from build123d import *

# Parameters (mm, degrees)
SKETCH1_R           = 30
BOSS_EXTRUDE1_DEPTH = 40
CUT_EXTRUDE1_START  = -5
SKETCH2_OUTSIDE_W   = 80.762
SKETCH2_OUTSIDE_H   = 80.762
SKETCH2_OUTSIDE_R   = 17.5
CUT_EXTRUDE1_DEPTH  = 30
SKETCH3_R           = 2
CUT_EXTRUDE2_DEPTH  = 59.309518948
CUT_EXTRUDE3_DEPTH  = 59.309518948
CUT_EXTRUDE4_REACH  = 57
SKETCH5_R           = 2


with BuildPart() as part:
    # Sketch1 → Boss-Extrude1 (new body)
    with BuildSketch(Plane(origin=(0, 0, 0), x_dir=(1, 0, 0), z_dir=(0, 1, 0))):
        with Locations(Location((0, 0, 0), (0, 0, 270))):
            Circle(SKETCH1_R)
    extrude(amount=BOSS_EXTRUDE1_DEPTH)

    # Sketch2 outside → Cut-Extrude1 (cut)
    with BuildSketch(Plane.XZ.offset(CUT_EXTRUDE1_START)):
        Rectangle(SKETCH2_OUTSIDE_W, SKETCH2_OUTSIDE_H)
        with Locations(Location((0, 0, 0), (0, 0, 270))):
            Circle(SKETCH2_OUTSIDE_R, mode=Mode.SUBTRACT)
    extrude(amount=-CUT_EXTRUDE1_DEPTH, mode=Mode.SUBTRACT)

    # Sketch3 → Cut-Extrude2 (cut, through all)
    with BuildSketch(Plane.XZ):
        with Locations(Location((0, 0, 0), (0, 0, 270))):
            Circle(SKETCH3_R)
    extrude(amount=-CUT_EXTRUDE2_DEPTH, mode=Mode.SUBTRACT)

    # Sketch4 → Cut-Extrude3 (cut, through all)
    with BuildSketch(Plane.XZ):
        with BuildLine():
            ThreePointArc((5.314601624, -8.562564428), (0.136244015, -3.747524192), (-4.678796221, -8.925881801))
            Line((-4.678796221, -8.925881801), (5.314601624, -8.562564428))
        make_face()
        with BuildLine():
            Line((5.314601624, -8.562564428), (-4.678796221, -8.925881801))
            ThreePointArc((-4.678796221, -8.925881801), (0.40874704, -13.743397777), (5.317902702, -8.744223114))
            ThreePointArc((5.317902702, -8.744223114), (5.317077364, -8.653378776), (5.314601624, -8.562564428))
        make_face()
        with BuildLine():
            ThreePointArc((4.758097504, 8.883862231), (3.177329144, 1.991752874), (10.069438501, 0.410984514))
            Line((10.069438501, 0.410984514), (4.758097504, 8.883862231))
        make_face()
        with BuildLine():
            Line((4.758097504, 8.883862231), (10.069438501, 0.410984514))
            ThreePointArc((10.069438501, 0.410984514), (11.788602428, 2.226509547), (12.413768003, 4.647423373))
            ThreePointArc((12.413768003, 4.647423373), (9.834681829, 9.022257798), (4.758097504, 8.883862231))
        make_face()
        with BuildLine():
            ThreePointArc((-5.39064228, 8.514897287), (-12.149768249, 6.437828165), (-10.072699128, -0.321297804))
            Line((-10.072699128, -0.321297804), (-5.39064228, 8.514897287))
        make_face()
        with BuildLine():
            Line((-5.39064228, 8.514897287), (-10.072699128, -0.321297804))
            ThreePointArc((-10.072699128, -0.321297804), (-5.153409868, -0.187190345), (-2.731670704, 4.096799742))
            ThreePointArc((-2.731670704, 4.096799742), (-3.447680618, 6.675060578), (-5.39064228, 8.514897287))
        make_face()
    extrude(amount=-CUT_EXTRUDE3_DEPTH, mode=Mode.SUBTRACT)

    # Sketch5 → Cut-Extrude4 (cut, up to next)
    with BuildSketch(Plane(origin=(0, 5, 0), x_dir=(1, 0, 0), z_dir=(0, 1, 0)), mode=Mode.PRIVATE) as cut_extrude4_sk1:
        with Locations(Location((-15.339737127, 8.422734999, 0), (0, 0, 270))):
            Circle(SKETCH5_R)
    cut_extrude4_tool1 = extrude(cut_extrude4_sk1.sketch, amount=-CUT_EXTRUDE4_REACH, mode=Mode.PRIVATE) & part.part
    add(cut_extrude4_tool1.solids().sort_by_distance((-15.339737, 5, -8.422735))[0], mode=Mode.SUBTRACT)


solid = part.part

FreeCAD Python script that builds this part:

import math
import FreeCAD as App
import Part
import Sketcher
from FreeCAD import Vector
Q = App.Units.Quantity

doc = App.newDocument("Part")
body = doc.addObject("PartDesign::Body", "Body")

# Sketch on XZ plane
sketch1 = doc.addObject("Sketcher::SketchObject", "Sketch")
body.addObject(sketch1)
sketch1.AttachmentSupport = (doc.XZ_Plane, [""])
sketch1.MapMode = "FlatFace"
sketch1.addGeometry(Part.Circle(Vector(0, 0, 0), Vector(0, 0, 1), 30), False)
sketch1.addConstraint([
    Sketcher.Constraint("Coincident", 0, 3, -1, 1),
    Sketcher.Constraint("Diameter", 0, Q("60 mm")),
])
pad1 = doc.addObject("PartDesign::Pad", "Pad")
body.addObject(pad1)
pad1.Profile = sketch1
pad1.Length = 40
pad1.Reversed = True

# Sketch on XZ plane
sketch2 = doc.addObject("Sketcher::SketchObject", "Sketch001")
body.addObject(sketch2)
sketch2.AttachmentSupport = (doc.XZ_Plane, [""])
sketch2.MapMode = "FlatFace"
sketch2.AttachmentOffset = App.Placement(Vector(0, 0, -5), App.Rotation())
sketch2.addGeometry([
    Part.LineSegment(Vector(-40.381, 40.381, 0), Vector(-40.381, -40.381, 0)),  # 0
    Part.LineSegment(Vector(-40.381, -40.381, 0), Vector(40.381, -40.381, 0)),  # 1
    Part.LineSegment(Vector(40.381, -40.381, 0), Vector(40.381, 40.381, 0)),  # 2
    Part.LineSegment(Vector(40.381, 40.381, 0), Vector(-40.381, 40.381, 0)),  # 3
    Part.Circle(Vector(0, 0, 0), Vector(0, 0, 1), 17.5),  # 4
], False)
sketch2.addConstraint([
    Sketcher.Constraint("Coincident", 0, 2, 1, 1),
    Sketcher.Constraint("Coincident", 1, 2, 2, 1),
    Sketcher.Constraint("Coincident", 2, 2, 3, 1),
    Sketcher.Constraint("Coincident", 3, 2, 0, 1),
    Sketcher.Constraint("Vertical", 0),
    Sketcher.Constraint("Horizontal", 1),
    Sketcher.Constraint("Vertical", 2),
    Sketcher.Constraint("Horizontal", 3),
    Sketcher.Constraint("Coincident", 4, 3, -1, 1),
    Sketcher.Constraint("Symmetric", 0, 2, 2, 2, -1, 1),
    Sketcher.Constraint("Equal", 3, 0),
    Sketcher.Constraint("Diameter", 4, Q("35 mm")),
    Sketcher.Constraint("DistanceX", 1, 1, 1, 2, Q("80.762 mm")),
])
pocket1 = doc.addObject("PartDesign::Pocket", "Pocket")
body.addObject(pocket1)
pocket1.Profile = sketch2
pocket1.Length = 30

# Sketch on XZ plane
sketch3 = doc.addObject("Sketcher::SketchObject", "Sketch002")
body.addObject(sketch3)
sketch3.AttachmentSupport = (doc.XZ_Plane, [""])
sketch3.MapMode = "FlatFace"
sketch3.addGeometry(Part.Circle(Vector(0, 0, 0), Vector(0, 0, 1), 2), False)
sketch3.addConstraint([
    Sketcher.Constraint("Coincident", 0, 3, -1, 1),
    Sketcher.Constraint("Diameter", 0, Q("4 mm")),
])
pocket2 = doc.addObject("PartDesign::Pocket", "Pocket001")
body.addObject(pocket2)
pocket2.Profile = sketch3
pocket2.Type = "ThroughAll"

# Sketch on XZ plane
sketch4 = doc.addObject("Sketcher::SketchObject", "Sketch003")
body.addObject(sketch4)
sketch4.AttachmentSupport = (doc.XZ_Plane, [""])
sketch4.MapMode = "FlatFace"
sketch4.addGeometry([
    Part.ArcOfCircle(Part.Circle(Vector(0.317903, -8.744223, 0), Vector(0, 0, 1), 5), math.radians(2.082113), math.radians(182.082113)),  # 0
    Part.ArcOfCircle(Part.Circle(Vector(0.317903, -8.744223, 0), Vector(0, 0, 1), 5), math.radians(-177.917887), math.radians(0)),  # 1
    Part.ArcOfCircle(Part.Circle(Vector(0.317901, -8.744223, 0), Vector(0, 0, 1), 5.000002), math.radians(0), math.radians(2.082113)),  # 2
    Part.ArcOfCircle(Part.Circle(Vector(7.413768, 4.647423, 0), Vector(0, 0, 1), 5), math.radians(122.082113), math.radians(302.082113)),  # 3
    Part.ArcOfCircle(Part.Circle(Vector(7.413768, 4.647423, 0), Vector(0, 0, 1), 5), math.radians(-57.917887), math.radians(0)),  # 4
    Part.ArcOfCircle(Part.Circle(Vector(7.413768, 4.647423, 0), Vector(0, 0, 1), 5), math.radians(0), math.radians(122.082113)),  # 5
    Part.ArcOfCircle(Part.Circle(Vector(-7.731671, 4.0968, 0), Vector(0, 0, 1), 5), math.radians(62.082113), math.radians(242.082113)),  # 6
    Part.ArcOfCircle(Part.Circle(Vector(-7.731671, 4.0968, 0), Vector(0, 0, 1), 5), math.radians(-117.917887), math.radians(0)),  # 7
    Part.ArcOfCircle(Part.Circle(Vector(-7.731671, 4.0968, 0), Vector(0, 0, 1), 5), math.radians(0), math.radians(62.082113)),  # 8
], False)
sketch4.addConstraint([
    Sketcher.Constraint("Coincident", 0, 2, 1, 1),
    Sketcher.Constraint("Coincident", 1, 2, 2, 1),
    Sketcher.Constraint("Coincident", 2, 2, 0, 1),
    Sketcher.Constraint("Coincident", 3, 2, 4, 1),
    Sketcher.Constraint("Coincident", 4, 2, 5, 1),
    Sketcher.Constraint("Coincident", 5, 2, 3, 1),
    Sketcher.Constraint("Coincident", 6, 2, 7, 1),
    Sketcher.Constraint("Coincident", 7, 2, 8, 1),
    Sketcher.Constraint("Coincident", 8, 2, 6, 1),
    Sketcher.Constraint("Coincident", 1, 3, 0, 3),
    Sketcher.Constraint("Coincident", 4, 3, 3, 3),
    Sketcher.Constraint("Coincident", 7, 3, 6, 3),
    Sketcher.Constraint("Radius", 0, Q("5 mm")),
    Sketcher.Constraint("Radius", 2, Q("5.000002 mm")),
    Sketcher.Constraint("Radius", 3, Q("5 mm")),
    Sketcher.Constraint("Radius", 5, Q("5 mm")),
    Sketcher.Constraint("Radius", 6, Q("5 mm")),
    Sketcher.Constraint("Radius", 8, Q("5 mm")),
    Sketcher.Constraint("DistanceX", -1, 1, 2, 3, Q("0.317901 mm")),
    Sketcher.Constraint("DistanceY", -1, 1, 6, 3, Q("4.0968 mm")),
    Sketcher.Constraint("DistanceX", -1, 1, 2, 2, Q("5.314602 mm")),
    Sketcher.Constraint("DistanceX", 6, 2, -1, 1, Q("10.072699 mm")),
    Sketcher.Constraint("DistanceY", -1, 1, 7, 2, Q("4.0968 mm")),
    Sketcher.Constraint("DistanceX", 0, 2, 0, 3, Q("4.996699 mm")),
    Sketcher.Constraint("DistanceX", -1, 1, 3, 3, Q("7.413768 mm")),
    Sketcher.Constraint("DistanceX", 6, 3, -1, 1, Q("7.731671 mm")),
    Sketcher.Constraint("DistanceY", 0, 2, -1, 1, Q("8.925882 mm")),
    Sketcher.Constraint("DistanceX", -1, 1, 3, 2, Q("10.069439 mm")),
    Sketcher.Constraint("DistanceY", 0, 2, 1, 2, Q("0.181659 mm")),
    Sketcher.Constraint("DistanceY", 2, 2, 3, 2, Q("8.973549 mm")),
    Sketcher.Constraint("DistanceY", 3, 2, 4, 2, Q("4.236439 mm")),
    Sketcher.Constraint("DistanceX", 5, 2, 4, 3, Q("2.65567 mm")),
    Sketcher.Constraint("DistanceX", 7, 3, 8, 2, Q("2.341028 mm")),
])
pocket3 = doc.addObject("PartDesign::Pocket", "Pocket002")
body.addObject(pocket3)
pocket3.Profile = sketch4
pocket3.Type = "ThroughAll"

# Sketch on XZ plane
sketch5 = doc.addObject("Sketcher::SketchObject", "Sketch004")
body.addObject(sketch5)
sketch5.AttachmentSupport = (doc.XZ_Plane, [""])
sketch5.MapMode = "FlatFace"
sketch5.AttachmentOffset = App.Placement(Vector(0, 0, -5), App.Rotation())
sketch5.addGeometry(Part.Circle(Vector(-15.339737, -8.422735, 0), Vector(0, 0, 1), 2), False)
sketch5.addConstraint([
    Sketcher.Constraint("Diameter", 0, Q("4 mm")),
    Sketcher.Constraint("DistanceX", 0, 3, -1, 1, Q("15.339737 mm")),
    Sketcher.Constraint("DistanceY", 0, 3, -1, 1, Q("8.422735 mm")),
])
pocket4 = doc.addObject("PartDesign::Pocket", "Pocket003")
body.addObject(pocket4)
pocket4.Profile = sketch5
pocket4.Type = "UpToFirst"
pocket4.Reversed = True

doc.recompute()
